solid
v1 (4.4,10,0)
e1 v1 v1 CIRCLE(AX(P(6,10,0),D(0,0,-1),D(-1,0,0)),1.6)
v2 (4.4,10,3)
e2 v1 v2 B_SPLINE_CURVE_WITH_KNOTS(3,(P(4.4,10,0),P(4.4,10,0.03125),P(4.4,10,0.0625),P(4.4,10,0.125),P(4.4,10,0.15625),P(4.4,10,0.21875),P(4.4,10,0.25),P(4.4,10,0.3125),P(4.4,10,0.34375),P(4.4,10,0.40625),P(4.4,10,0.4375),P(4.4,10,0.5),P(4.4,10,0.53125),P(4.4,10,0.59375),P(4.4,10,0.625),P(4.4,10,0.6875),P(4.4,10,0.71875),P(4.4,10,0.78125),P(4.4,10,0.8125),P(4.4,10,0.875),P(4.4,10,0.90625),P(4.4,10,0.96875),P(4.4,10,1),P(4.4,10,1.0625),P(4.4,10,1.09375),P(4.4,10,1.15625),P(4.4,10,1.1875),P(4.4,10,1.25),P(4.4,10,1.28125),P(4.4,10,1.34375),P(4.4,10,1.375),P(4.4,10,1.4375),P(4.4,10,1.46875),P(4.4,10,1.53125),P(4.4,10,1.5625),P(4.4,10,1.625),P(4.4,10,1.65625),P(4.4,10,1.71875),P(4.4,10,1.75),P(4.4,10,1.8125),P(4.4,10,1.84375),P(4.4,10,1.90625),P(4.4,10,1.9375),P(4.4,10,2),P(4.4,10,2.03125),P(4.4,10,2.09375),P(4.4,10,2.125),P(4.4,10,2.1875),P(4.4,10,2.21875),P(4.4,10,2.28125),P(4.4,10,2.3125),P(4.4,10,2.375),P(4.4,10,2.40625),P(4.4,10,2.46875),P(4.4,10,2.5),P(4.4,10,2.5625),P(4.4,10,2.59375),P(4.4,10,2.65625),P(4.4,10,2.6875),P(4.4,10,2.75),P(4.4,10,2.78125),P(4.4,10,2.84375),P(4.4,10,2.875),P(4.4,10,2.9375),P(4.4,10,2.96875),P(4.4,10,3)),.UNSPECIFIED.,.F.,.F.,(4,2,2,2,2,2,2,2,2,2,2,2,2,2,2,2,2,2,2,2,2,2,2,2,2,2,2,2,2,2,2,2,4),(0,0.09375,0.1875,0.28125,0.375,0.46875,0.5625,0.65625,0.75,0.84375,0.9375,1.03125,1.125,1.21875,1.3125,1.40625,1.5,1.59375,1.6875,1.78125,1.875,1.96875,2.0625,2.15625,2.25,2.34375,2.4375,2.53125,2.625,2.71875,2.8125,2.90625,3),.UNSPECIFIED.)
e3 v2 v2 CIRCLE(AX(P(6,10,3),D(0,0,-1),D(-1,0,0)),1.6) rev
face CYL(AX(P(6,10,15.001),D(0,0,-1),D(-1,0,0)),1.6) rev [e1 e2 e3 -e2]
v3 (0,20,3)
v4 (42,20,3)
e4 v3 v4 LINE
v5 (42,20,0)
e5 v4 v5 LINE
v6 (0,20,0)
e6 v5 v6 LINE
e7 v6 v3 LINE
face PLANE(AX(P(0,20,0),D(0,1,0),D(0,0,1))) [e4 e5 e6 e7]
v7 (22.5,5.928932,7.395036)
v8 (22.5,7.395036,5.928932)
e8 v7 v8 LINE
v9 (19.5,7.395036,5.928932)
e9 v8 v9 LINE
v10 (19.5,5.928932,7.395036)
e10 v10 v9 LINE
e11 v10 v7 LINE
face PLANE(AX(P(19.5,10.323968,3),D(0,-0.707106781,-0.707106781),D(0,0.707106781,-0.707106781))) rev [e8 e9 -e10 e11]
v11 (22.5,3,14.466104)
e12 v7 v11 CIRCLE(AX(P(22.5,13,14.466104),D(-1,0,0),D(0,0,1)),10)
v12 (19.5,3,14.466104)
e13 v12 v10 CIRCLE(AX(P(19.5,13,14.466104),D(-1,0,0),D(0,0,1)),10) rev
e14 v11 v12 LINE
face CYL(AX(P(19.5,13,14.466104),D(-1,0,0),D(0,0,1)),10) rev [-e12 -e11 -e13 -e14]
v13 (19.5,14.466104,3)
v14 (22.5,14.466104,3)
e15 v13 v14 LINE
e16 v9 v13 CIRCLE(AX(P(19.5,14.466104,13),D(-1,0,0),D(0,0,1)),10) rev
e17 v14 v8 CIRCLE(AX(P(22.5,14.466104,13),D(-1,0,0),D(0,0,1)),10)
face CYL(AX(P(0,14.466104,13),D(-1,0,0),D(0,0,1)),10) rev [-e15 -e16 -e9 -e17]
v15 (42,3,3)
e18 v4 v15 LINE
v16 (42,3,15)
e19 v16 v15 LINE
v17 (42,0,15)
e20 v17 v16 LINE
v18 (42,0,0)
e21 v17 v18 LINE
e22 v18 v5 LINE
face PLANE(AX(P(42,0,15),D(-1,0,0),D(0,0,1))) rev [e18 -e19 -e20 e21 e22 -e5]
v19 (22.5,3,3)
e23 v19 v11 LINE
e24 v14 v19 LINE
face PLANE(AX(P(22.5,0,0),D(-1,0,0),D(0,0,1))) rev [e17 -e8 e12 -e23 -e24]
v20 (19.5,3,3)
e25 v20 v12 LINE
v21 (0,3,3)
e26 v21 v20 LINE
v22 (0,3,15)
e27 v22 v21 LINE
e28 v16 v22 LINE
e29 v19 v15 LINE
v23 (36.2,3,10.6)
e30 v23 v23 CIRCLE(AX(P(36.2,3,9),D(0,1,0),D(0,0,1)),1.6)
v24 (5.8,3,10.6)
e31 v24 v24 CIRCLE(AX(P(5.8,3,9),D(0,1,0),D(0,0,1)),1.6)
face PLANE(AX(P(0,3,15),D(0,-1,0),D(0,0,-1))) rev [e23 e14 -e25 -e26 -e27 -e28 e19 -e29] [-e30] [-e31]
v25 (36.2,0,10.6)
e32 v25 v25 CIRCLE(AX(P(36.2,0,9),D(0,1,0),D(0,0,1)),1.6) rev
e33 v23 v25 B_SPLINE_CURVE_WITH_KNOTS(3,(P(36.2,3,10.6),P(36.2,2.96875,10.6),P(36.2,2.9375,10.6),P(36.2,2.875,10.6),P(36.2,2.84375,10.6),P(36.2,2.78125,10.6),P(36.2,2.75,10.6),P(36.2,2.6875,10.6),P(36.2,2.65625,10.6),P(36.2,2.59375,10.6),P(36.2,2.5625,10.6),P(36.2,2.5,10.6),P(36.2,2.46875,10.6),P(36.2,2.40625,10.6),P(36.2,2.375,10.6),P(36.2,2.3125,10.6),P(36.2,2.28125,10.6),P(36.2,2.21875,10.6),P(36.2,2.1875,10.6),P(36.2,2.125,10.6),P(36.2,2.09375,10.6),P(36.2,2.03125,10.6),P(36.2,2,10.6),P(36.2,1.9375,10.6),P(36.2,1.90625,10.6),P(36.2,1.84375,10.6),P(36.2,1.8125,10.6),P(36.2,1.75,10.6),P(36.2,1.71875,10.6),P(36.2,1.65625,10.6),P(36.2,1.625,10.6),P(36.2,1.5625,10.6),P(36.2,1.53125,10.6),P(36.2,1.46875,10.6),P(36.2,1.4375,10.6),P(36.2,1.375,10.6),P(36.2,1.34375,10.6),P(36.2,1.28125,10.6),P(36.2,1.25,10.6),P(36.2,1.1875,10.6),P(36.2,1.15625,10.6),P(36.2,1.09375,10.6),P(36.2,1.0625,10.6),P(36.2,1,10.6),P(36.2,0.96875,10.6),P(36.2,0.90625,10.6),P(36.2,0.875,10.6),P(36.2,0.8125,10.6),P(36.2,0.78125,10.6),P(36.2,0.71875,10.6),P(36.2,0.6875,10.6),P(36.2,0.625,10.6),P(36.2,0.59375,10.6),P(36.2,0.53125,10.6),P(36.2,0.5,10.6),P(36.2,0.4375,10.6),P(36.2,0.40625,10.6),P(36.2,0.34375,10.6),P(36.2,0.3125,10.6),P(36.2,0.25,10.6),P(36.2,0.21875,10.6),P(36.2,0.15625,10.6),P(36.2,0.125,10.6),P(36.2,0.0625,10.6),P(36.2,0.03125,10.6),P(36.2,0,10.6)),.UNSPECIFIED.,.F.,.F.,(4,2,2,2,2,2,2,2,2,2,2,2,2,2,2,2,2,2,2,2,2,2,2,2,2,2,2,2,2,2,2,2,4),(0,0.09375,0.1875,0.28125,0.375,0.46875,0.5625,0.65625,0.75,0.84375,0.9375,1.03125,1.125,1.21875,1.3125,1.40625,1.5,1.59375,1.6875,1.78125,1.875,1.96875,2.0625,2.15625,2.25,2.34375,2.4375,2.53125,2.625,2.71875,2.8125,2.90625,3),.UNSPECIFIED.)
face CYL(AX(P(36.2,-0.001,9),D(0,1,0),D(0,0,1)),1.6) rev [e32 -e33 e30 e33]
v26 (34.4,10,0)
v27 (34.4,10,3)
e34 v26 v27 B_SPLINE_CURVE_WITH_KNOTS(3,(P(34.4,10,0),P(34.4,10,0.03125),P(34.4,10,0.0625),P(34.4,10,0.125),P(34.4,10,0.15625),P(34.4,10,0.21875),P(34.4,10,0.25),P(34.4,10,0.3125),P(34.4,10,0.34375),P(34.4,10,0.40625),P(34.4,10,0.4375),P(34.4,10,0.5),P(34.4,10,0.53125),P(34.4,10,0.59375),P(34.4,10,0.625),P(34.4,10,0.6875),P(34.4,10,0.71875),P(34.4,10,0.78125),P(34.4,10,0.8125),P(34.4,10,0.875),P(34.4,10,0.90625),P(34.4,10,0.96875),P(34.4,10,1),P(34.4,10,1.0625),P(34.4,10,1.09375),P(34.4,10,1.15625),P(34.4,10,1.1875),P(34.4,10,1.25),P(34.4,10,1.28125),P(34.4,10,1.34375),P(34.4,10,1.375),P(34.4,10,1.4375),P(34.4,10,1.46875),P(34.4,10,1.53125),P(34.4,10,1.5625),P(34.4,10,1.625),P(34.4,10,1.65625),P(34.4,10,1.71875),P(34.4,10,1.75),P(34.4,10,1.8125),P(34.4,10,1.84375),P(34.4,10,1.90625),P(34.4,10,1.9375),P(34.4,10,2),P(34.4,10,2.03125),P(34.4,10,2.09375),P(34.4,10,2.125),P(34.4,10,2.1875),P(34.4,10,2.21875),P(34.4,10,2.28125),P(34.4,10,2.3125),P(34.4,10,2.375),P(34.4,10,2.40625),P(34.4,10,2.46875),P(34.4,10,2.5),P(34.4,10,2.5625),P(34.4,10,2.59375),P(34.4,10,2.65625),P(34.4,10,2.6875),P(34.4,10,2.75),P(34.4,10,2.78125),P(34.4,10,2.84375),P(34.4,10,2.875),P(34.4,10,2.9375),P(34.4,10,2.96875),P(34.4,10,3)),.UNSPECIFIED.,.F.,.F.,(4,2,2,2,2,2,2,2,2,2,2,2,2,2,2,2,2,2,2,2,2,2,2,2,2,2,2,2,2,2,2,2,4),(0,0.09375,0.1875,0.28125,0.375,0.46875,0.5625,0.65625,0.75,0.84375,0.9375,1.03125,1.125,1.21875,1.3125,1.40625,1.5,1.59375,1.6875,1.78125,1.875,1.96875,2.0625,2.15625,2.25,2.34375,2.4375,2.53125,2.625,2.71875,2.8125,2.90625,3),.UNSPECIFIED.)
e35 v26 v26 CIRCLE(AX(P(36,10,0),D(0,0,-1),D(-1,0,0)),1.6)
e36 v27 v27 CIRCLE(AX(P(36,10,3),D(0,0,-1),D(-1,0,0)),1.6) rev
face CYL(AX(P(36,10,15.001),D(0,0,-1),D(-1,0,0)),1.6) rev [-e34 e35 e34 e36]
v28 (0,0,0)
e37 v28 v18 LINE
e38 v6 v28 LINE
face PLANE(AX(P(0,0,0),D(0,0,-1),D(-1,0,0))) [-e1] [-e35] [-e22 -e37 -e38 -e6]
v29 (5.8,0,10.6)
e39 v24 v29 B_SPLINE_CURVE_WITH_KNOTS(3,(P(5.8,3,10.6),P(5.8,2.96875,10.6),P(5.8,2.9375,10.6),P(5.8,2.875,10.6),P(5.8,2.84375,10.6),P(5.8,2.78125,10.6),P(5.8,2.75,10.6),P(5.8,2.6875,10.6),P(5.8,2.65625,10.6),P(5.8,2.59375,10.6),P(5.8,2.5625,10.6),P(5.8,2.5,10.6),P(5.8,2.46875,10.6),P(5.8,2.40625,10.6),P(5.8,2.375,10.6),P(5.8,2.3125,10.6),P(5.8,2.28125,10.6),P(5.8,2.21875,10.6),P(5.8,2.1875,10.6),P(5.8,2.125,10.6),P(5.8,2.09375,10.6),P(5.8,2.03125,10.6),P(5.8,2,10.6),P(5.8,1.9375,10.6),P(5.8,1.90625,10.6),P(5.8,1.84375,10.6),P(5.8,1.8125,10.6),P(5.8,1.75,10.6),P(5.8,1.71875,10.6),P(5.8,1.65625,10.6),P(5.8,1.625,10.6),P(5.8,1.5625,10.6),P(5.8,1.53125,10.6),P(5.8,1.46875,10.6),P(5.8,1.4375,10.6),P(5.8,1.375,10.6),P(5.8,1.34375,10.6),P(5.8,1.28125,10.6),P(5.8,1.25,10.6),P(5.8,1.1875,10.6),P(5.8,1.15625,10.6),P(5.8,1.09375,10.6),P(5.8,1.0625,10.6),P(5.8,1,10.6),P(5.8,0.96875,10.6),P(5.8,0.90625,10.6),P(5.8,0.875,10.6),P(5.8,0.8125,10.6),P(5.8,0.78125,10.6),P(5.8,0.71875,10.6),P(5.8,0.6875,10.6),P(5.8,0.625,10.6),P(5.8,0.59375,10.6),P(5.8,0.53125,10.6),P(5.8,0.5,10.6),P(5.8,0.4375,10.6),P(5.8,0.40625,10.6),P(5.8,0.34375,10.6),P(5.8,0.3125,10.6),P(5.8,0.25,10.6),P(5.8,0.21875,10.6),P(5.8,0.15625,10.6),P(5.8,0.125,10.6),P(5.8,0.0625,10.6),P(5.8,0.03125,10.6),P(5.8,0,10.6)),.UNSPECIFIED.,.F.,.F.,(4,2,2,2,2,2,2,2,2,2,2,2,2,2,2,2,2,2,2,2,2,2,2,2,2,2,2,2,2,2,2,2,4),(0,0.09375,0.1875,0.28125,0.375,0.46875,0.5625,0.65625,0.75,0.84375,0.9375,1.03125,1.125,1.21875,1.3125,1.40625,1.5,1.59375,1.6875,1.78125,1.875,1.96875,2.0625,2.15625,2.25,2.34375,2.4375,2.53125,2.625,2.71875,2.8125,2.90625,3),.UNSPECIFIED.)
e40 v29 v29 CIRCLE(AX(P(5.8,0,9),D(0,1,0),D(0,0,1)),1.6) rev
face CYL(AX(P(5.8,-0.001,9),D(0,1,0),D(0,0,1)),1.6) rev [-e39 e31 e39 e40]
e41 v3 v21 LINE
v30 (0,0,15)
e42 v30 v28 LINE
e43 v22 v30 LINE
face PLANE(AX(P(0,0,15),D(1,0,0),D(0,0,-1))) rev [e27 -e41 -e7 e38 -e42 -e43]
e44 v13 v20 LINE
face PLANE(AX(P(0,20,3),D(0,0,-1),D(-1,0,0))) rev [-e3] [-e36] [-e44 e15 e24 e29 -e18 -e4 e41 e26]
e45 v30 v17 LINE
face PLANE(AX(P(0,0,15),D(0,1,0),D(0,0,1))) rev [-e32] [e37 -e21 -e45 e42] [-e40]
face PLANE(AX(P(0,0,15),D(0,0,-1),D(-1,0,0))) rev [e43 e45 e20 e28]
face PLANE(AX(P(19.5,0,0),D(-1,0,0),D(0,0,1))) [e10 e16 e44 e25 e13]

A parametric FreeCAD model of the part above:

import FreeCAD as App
import Part
import Sketcher

V = App.Vector
Q = App.Units.Quantity


def edges_at(feature, points):
    """Names of the edges that pass closest to the given points."""
    edges = feature.Shape.Edges
    near = lambda p: min(range(len(edges)), key=lambda i: edges[i].distToShape(Part.Vertex(*p))[0])
    return sorted({f"Edge{near(p) + 1}" for p in points})

doc = App.newDocument("Part")
body = doc.addObject("PartDesign::Body", "Body")

# Sketch on XY plane
sketch1 = doc.addObject("Sketcher::SketchObject", "Sketch")
body.addObject(sketch1)
sketch1.AttachmentSupport = (doc.XY_Plane, [""])
sketch1.MapMode = "FlatFace"
sketch1.addGeometry(Part.LineSegment(V(0, 3, 0), V(0, 0, 0)), False)
sketch1.addGeometry(Part.LineSegment(V(0, 0, 0), V(42, 0, 0)), False)
sketch1.addGeometry(Part.LineSegment(V(42, 0, 0), V(42, 3, 0)), False)
sketch1.addGeometry(Part.LineSegment(V(42, 3, 0), V(0, 3, 0)), False)
sketch1.addConstraint(Sketcher.Constraint("Coincident", 0, 2, 1, 1))
sketch1.addConstraint(Sketcher.Constraint("Coincident", 1, 2, 2, 1))
sketch1.addConstraint(Sketcher.Constraint("Coincident", 2, 2, 3, 1))
sketch1.addConstraint(Sketcher.Constraint("Coincident", 3, 2, 0, 1))
sketch1.addConstraint(Sketcher.Constraint("Vertical", 0))
sketch1.addConstraint(Sketcher.Constraint("Horizontal", 1))
sketch1.addConstraint(Sketcher.Constraint("Vertical", 2))
sketch1.addConstraint(Sketcher.Constraint("Horizontal", 3))
sketch1.addConstraint(Sketcher.Constraint("Coincident", 0, 2, -1, 1))
sketch1.addConstraint(Sketcher.Constraint("DistanceX", 1, 1, 1, 2, Q("42 mm")))
sketch1.addConstraint(Sketcher.Constraint("DistanceY", 0, 2, 0, 1, Q("3 mm")))
pad1 = doc.addObject("PartDesign::Pad", "Pad")
body.addObject(pad1)
pad1.Profile = sketch1
pad1.Length = 15

# Sketch on XZ plane
sketch2 = doc.addObject("Sketcher::SketchObject", "Sketch001")
body.addObject(sketch2)
sketch2.AttachmentSupport = (doc.XZ_Plane, [""])
sketch2.MapMode = "FlatFace"
sketch2.AttachmentOffset = App.Placement(V(0, 0, -3), App.Rotation())
sketch2.addGeometry(Part.LineSegment(V(0, 0, 0), V(0, 3, 0)), False)
sketch2.addGeometry(Part.LineSegment(V(0, 3, 0), V(42, 3, 0)), False)
sketch2.addGeometry(Part.LineSegment(V(42, 3, 0), V(42, 0, 0)), False)
sketch2.addGeometry(Part.LineSegment(V(42, 0, 0), V(0, 0, 0)), False)
sketch2.addConstraint(Sketcher.Constraint("Coincident", 0, 2, 1, 1))
sketch2.addConstraint(Sketcher.Constraint("Coincident", 1, 2, 2, 1))
sketch2.addConstraint(Sketcher.Constraint("Coincident", 2, 2, 3, 1))
sketch2.addConstraint(Sketcher.Constraint("Coincident", 3, 2, 0, 1))
sketch2.addConstraint(Sketcher.Constraint("Vertical", 0))
sketch2.addConstraint(Sketcher.Constraint("Horizontal", 1))
sketch2.addConstraint(Sketcher.Constraint("Vertical", 2))
sketch2.addConstraint(Sketcher.Constraint("Horizontal", 3))
sketch2.addConstraint(Sketcher.Constraint("Coincident", 3, 2, -1, 1))
sketch2.addConstraint(Sketcher.Constraint("DistanceX", 1, 1, 1, 2, Q("42 mm")))
sketch2.addConstraint(Sketcher.Constraint("DistanceY", 0, 1, 0, 2, Q("3 mm")))
pad2 = doc.addObject("PartDesign::Pad", "Pad001")
body.addObject(pad2)
pad2.Profile = sketch2
pad2.Length = 17
pad2.Reversed = True

# Sketch on XZ plane
sketch3 = doc.addObject("Sketcher::SketchObject", "Sketch002")
body.addObject(sketch3)
sketch3.AttachmentSupport = (doc.XZ_Plane, [""])
sketch3.MapMode = "FlatFace"
sketch3.AttachmentOffset = App.Placement(V(0, 0, -3), App.Rotation())
sketch3.addGeometry(Part.Circle(V(5.8, 9, 0), V(0, 0, 1), 1.6), False)
sketch3.addConstraint(Sketcher.Constraint("Diameter", 0, Q("3.2 mm")))
sketch3.addConstraint(Sketcher.Constraint("DistanceY", -1, 1, 0, 3, Q("9 mm")))
sketch3.addConstraint(Sketcher.Constraint("DistanceX", -1, 1, 0, 3, Q("5.8 mm")))
pocket1 = doc.addObject("PartDesign::Pocket", "Pocket")
body.addObject(pocket1)
pocket1.Profile = sketch3
pocket1.Type = "UpToFirst"
pocket1.Reversed = True

# Sketch on XZ plane
sketch4 = doc.addObject("Sketcher::SketchObject", "Sketch003")
body.addObject(sketch4)
sketch4.AttachmentSupport = (doc.XZ_Plane, [""])
sketch4.MapMode = "FlatFace"
sketch4.AttachmentOffset = App.Placement(V(0, 0, -3), App.Rotation())
sketch4.addGeometry(Part.Circle(V(36.2, 9, 0), V(0, 0, 1), 1.6), False)
sketch4.addConstraint(Sketcher.Constraint("Diameter", 0, Q("3.2 mm")))
sketch4.addConstraint(Sketcher.Constraint("DistanceY", -1, 1, 0, 3, Q("9 mm")))
sketch4.addConstraint(Sketcher.Constraint("DistanceX", -1, 1, 0, 3, Q("36.2 mm")))
pocket2 = doc.addObject("PartDesign::Pocket", "Pocket001")
body.addObject(pocket2)
pocket2.Profile = sketch4
pocket2.Type = "UpToFirst"
pocket2.Reversed = True

# Sketch on XY plane
sketch5 = doc.addObject("Sketcher::SketchObject", "Sketch004")
body.addObject(sketch5)
sketch5.AttachmentSupport = (doc.XY_Plane, [""])
sketch5.MapMode = "FlatFace"
sketch5.addGeometry(Part.Circle(V(36, 10, 0), V(0, 0, 1), 1.6), False)
sketch5.addConstraint(Sketcher.Constraint("Diameter", 0, Q("3.2 mm")))
sketch5.addConstraint(Sketcher.Constraint("DistanceX", -1, 1, 0, 3, Q("36 mm")))
sketch5.addConstraint(Sketcher.Constraint("DistanceY", -1, 1, 0, 3, Q("10 mm")))
pocket3 = doc.addObject("PartDesign::Pocket", "Pocket002")
body.addObject(pocket3)
pocket3.Profile = sketch5
pocket3.Type = "UpToFirst"
pocket3.Reversed = True

# Sketch on XY plane
sketch6 = doc.addObject("Sketcher::SketchObject", "Sketch005")
body.addObject(sketch6)
sketch6.AttachmentSupport = (doc.XY_Plane, [""])
sketch6.MapMode = "FlatFace"
sketch6.addGeometry(Part.Circle(V(6, 10, 0), V(0, 0, 1), 1.6), False)
sketch6.addConstraint(Sketcher.Constraint("Diameter", 0, Q("3.2 mm")))
sketch6.addConstraint(Sketcher.Constraint("DistanceX", -1, 1, 0, 3, Q("6 mm")))
sketch6.addConstraint(Sketcher.Constraint("DistanceY", -1, 1, 0, 3, Q("10 mm")))
pocket4 = doc.addObject("PartDesign::Pocket", "Pocket003")
body.addObject(pocket4)
pocket4.Profile = sketch6
pocket4.Type = "UpToFirst"
pocket4.Reversed = True

# Sketch on YZ plane
sketch7 = doc.addObject("Sketcher::SketchObject", "Sketch006")
body.addObject(sketch7)
sketch7.AttachmentSupport = (doc.YZ_Plane, [""])
sketch7.MapMode = "FlatFace"
sketch7.AttachmentOffset = App.Placement(V(0, 0, 21), App.Rotation())
sketch7.addGeometry(Part.LineSegment(V(3, 10, 0), V(10, 3, 0)), False)
sketch7.addGeometry(Part.LineSegment(V(10, 3, 0), V(3, 3, 0)), False)
sketch7.addGeometry(Part.LineSegment(V(3, 3, 0), V(3, 10, 0)), False)
sketch7.addConstraint(Sketcher.Constraint("Coincident", 0, 2, 1, 1))
sketch7.addConstraint(Sketcher.Constraint("Coincident", 1, 2, 2, 1))
sketch7.addConstraint(Sketcher.Constraint("Coincident", 2, 2, 0, 1))
sketch7.addConstraint(Sketcher.Constraint("Horizontal", 1))
sketch7.addConstraint(Sketcher.Constraint("Vertical", 2))
sketch7.addConstraint(Sketcher.Constraint("Equal", 1, 2))
sketch7.addConstraint(Sketcher.Constraint("DistanceY", -1, 1, 0, 2, Q("3 mm")))
sketch7.addConstraint(Sketcher.Constraint("DistanceX", -1, 1, 1, 2, Q("3 mm")))
sketch7.addConstraint(Sketcher.Constraint("DistanceX", 1, 2, 1, 1, Q("7.323968 mm")))
pad3 = doc.addObject("PartDesign::Pad", "Pad002")
body.addObject(pad3)
pad3.Profile = sketch7
pad3.Length = 3
pad3.Midplane = True
doc.recompute()

fillet = doc.addObject("PartDesign::Fillet", "Fillet")
body.addObject(fillet)
fillet.Base = (pad3, edges_at(pad3, [(21, 10.324, 3), (21, 3, 10.324)]))
fillet.Radius = 10

doc.recompute()
